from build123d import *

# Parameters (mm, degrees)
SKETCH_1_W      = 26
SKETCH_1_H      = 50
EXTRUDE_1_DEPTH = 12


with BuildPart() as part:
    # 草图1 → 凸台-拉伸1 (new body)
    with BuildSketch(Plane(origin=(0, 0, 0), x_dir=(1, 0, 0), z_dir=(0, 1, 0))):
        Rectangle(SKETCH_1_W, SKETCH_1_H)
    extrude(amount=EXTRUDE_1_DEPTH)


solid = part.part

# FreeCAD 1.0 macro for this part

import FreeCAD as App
import Part
import Sketcher

V = App.Vector
Q = App.Units.Quantity


def add_polygon(sketch, points):
    """Adds a closed chain of lines whose ends are joined by coincident constraints."""
    first, n = sketch.GeometryCount, len(points)
    for a, b in zip(points, points[1:] + points[:1]):
        sketch.addGeometry(Part.LineSegment(App.Vector(*a, 0), App.Vector(*b, 0)), False)
    for i in range(n):
        sketch.addConstraint(Sketcher.Constraint("Coincident", first + i, 2, first + (i + 1) % n, 1))

doc = App.newDocument("Part")
body = doc.addObject("PartDesign::Body", "Body")

# Sketch on XZ plane
sketch1 = doc.addObject("Sketcher::SketchObject", "Sketch")
body.addObject(sketch1)
sketch1.AttachmentSupport = (doc.XZ_Plane, [""])
sketch1.MapMode = "FlatFace"
add_polygon(sketch1, [(-13, -25), (-13, 25), (13, 25), (13, -25)])  # lines 0-3
sketch1.addConstraint(Sketcher.Constraint("Vertical", 0))
sketch1.addConstraint(Sketcher.Constraint("Horizontal", 1))
sketch1.addConstraint(Sketcher.Constraint("Vertical", 2))
sketch1.addConstraint(Sketcher.Constraint("Horizontal", 3))
sketch1.addConstraint(Sketcher.Constraint("Symmetric", 0, 2, 2, 2, -1, 1))
sketch1.addConstraint(Sketcher.Constraint("DistanceX", 1, 1, 1, 2, Q("26 mm")))
sketch1.addConstraint(Sketcher.Constraint("DistanceY", 0, 1, 0, 2, Q("50 mm")))
pad1 = doc.addObject("PartDesign::Pad", "Pad")
body.addObject(pad1)
pad1.Profile = sketch1
pad1.Length = 12
pad1.Reversed = True

doc.recompute()
